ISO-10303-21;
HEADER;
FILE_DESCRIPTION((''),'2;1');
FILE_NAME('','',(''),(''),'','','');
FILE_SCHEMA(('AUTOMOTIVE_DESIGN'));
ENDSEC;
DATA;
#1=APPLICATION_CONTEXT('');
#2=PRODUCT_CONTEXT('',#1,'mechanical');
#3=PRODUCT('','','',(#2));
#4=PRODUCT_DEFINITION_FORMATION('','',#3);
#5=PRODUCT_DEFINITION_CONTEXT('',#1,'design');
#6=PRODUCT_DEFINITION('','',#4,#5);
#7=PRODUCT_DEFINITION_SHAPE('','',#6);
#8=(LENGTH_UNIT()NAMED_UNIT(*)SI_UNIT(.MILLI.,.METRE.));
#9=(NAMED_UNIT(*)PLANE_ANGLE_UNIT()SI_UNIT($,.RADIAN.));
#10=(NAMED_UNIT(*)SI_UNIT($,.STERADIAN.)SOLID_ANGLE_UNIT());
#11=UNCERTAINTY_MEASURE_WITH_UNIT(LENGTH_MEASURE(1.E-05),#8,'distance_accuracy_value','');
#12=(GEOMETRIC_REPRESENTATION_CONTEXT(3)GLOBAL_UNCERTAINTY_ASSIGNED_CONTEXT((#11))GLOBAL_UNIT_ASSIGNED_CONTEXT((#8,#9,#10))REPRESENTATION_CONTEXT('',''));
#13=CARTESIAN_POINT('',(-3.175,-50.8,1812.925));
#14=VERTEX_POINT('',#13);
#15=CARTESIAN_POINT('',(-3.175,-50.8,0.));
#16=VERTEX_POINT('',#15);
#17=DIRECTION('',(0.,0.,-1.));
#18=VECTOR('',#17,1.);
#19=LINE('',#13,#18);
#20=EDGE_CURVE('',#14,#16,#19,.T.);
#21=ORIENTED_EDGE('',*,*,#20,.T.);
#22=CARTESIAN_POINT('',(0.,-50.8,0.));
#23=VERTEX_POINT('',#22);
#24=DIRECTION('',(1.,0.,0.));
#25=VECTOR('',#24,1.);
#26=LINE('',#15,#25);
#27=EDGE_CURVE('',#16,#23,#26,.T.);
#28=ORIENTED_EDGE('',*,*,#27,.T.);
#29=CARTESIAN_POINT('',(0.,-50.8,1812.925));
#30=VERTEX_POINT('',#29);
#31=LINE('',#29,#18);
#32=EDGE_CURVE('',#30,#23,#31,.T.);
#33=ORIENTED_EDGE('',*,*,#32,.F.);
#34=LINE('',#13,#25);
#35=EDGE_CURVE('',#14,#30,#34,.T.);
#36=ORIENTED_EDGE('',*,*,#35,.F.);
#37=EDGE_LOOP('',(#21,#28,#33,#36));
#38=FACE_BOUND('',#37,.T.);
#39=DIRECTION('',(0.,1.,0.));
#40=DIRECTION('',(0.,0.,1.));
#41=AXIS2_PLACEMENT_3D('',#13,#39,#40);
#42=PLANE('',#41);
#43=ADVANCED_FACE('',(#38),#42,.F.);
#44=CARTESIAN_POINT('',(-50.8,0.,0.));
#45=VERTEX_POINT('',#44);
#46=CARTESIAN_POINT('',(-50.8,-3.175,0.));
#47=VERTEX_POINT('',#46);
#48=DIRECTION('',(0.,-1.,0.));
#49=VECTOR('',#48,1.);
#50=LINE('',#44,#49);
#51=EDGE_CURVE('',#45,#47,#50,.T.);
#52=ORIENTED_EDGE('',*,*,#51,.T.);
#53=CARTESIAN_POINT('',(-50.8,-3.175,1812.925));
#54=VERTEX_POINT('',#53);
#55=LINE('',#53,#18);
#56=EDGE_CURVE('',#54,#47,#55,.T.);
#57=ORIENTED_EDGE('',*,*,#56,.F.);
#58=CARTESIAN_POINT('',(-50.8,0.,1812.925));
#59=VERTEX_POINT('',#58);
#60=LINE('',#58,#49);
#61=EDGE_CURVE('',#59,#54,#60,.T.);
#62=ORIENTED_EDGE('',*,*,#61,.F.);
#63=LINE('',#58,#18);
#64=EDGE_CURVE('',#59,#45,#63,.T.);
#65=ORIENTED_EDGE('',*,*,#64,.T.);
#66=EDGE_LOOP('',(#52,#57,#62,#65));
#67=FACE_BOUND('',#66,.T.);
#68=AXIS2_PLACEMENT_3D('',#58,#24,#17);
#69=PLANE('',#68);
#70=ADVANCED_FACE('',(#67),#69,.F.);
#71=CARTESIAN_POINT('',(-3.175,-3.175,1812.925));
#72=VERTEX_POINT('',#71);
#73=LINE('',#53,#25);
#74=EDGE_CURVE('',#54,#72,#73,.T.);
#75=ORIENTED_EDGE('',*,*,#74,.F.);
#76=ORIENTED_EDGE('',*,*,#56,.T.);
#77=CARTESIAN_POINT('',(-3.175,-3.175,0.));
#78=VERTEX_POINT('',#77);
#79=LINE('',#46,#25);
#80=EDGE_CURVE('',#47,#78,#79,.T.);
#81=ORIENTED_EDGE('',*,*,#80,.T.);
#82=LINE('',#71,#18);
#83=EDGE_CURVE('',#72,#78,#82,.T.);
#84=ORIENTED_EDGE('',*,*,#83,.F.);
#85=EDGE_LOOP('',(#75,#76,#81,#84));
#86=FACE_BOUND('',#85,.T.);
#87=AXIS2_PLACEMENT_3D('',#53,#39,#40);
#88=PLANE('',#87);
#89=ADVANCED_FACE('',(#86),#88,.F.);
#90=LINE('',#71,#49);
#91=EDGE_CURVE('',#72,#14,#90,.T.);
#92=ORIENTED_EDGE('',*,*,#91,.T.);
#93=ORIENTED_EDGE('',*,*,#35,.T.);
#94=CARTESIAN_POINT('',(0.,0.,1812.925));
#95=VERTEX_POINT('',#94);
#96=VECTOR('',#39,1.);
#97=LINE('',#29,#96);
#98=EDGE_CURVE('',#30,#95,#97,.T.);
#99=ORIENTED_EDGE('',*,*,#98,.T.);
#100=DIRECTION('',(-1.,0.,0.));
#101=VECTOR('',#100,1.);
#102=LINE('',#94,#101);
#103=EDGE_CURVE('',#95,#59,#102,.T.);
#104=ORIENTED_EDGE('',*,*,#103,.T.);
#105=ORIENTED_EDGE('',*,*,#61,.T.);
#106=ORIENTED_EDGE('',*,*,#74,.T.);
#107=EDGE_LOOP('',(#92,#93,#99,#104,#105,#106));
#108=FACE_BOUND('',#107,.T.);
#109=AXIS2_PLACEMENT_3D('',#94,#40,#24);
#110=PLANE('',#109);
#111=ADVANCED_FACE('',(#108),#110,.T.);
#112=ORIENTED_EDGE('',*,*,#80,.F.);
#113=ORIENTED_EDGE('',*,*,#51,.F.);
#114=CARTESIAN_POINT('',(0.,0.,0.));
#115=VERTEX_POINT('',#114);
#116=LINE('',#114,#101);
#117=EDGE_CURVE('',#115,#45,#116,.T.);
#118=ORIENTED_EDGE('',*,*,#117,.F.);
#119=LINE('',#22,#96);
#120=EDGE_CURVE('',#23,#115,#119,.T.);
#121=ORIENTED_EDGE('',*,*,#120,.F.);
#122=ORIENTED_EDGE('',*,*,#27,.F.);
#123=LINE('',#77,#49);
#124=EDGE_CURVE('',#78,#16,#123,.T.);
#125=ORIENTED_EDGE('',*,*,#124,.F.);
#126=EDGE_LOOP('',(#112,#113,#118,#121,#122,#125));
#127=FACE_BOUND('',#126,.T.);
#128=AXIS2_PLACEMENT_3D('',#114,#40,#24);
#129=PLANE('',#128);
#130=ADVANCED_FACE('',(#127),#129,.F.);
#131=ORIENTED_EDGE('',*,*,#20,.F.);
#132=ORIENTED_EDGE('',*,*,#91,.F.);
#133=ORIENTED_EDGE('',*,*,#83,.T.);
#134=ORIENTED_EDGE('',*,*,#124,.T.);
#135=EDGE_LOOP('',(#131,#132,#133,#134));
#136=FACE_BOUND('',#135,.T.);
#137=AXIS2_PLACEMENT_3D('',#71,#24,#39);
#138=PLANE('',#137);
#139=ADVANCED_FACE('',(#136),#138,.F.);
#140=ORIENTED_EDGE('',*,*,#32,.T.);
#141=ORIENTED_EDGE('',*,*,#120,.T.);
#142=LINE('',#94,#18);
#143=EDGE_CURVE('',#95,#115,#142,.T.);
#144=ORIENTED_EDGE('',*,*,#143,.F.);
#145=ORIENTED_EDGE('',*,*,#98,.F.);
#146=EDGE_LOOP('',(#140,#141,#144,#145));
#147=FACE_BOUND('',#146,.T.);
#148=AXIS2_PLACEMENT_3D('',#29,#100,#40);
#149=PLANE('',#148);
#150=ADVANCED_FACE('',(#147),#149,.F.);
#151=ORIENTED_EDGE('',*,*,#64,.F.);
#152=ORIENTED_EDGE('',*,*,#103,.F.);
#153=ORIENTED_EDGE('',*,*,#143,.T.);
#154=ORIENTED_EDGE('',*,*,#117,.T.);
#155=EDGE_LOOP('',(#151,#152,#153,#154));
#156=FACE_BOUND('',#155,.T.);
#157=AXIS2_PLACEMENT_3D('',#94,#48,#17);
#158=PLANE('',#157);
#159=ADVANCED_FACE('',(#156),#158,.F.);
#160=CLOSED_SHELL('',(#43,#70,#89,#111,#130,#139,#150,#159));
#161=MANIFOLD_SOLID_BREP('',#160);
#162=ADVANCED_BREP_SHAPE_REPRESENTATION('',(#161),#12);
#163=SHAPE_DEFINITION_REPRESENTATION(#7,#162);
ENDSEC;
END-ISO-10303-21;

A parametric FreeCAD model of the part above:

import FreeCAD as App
import Part
import Sketcher

V = App.Vector
Q = App.Units.Quantity

doc = App.newDocument("Part")
params = doc.addObject("Spreadsheet::Sheet", "Params")
for row, (alias, value) in enumerate([
    ("sketch1_width", "2 in"),
    ("sketch1_width2", "1.875 in"),
    ("pad1_length", "71.375 in"),
], start=1):
    params.set(f"A{row}", alias)
    params.set(f"B{row}", "=" + value)
    params.setAlias(f"B{row}", alias)

body = doc.addObject("PartDesign::Body", "Body")

# Sketch on XY plane
sketch1 = body.newObject("Sketcher::SketchObject", "Sketch")
sketch1.AttachmentSupport = (doc.getObject("XY_Plane"), [""])
sketch1.MapMode = "FlatFace"
sketch1.addGeometry(Part.LineSegment(V(0, 0, 0), V(-50.8, 0, 0)), False)
sketch1.addGeometry(Part.LineSegment(V(-50.8, 0, 0), V(-50.8, -3.175, 0)), False)
sketch1.addGeometry(Part.LineSegment(V(-50.8, -3.175, 0), V(-3.175, -3.175, 0)), False)
sketch1.addGeometry(Part.LineSegment(V(-3.175, -3.175, 0), V(-3.175, -50.8, 0)), False)
sketch1.addGeometry(Part.LineSegment(V(-3.175, -50.8, 0), V(0, -50.8, 0)), False)
sketch1.addGeometry(Part.LineSegment(V(0, -50.8, 0), V(0, 0, 0)), False)
sketch1.addConstraint(Sketcher.Constraint("Coincident", 0, 2, 1, 1))
sketch1.addConstraint(Sketcher.Constraint("Coincident", 1, 2, 2, 1))
sketch1.addConstraint(Sketcher.Constraint("Coincident", 2, 2, 3, 1))
sketch1.addConstraint(Sketcher.Constraint("Coincident", 3, 2, 4, 1))
sketch1.addConstraint(Sketcher.Constraint("Coincident", 4, 2, 5, 1))
sketch1.addConstraint(Sketcher.Constraint("Coincident", 5, 2, 0, 1))
sketch1.addConstraint(Sketcher.Constraint("Horizontal", 0))
sketch1.addConstraint(Sketcher.Constraint("Vertical", 1))
sketch1.addConstraint(Sketcher.Constraint("Horizontal", 2))
sketch1.addConstraint(Sketcher.Constraint("Vertical", 3))
sketch1.addConstraint(Sketcher.Constraint("Horizontal", 4))
sketch1.addConstraint(Sketcher.Constraint("Vertical", 5))
sketch1.addConstraint(Sketcher.Constraint("Coincident", 5, 2, -1, 1))
sketch1.addConstraint(Sketcher.Constraint("Equal", 4, 1))
sketch1.addConstraint(Sketcher.Constraint("Equal", 2, 3))
sketch1.addConstraint(Sketcher.Constraint("DistanceX", 0, 2, 0, 1, Q("2 in")))
sketch1.addConstraint(Sketcher.Constraint("DistanceX", 2, 1, 2, 2, Q("1.875 in")))
sketch1.setExpression("Constraints[15]", "Params.sketch1_width")
sketch1.setExpression("Constraints[16]", "Params.sketch1_width2")
pad1 = body.newObject("PartDesign::Pad", "Pad")
pad1.Profile = sketch1
pad1.setExpression("Length", "Params.pad1_length")

doc.recompute()
